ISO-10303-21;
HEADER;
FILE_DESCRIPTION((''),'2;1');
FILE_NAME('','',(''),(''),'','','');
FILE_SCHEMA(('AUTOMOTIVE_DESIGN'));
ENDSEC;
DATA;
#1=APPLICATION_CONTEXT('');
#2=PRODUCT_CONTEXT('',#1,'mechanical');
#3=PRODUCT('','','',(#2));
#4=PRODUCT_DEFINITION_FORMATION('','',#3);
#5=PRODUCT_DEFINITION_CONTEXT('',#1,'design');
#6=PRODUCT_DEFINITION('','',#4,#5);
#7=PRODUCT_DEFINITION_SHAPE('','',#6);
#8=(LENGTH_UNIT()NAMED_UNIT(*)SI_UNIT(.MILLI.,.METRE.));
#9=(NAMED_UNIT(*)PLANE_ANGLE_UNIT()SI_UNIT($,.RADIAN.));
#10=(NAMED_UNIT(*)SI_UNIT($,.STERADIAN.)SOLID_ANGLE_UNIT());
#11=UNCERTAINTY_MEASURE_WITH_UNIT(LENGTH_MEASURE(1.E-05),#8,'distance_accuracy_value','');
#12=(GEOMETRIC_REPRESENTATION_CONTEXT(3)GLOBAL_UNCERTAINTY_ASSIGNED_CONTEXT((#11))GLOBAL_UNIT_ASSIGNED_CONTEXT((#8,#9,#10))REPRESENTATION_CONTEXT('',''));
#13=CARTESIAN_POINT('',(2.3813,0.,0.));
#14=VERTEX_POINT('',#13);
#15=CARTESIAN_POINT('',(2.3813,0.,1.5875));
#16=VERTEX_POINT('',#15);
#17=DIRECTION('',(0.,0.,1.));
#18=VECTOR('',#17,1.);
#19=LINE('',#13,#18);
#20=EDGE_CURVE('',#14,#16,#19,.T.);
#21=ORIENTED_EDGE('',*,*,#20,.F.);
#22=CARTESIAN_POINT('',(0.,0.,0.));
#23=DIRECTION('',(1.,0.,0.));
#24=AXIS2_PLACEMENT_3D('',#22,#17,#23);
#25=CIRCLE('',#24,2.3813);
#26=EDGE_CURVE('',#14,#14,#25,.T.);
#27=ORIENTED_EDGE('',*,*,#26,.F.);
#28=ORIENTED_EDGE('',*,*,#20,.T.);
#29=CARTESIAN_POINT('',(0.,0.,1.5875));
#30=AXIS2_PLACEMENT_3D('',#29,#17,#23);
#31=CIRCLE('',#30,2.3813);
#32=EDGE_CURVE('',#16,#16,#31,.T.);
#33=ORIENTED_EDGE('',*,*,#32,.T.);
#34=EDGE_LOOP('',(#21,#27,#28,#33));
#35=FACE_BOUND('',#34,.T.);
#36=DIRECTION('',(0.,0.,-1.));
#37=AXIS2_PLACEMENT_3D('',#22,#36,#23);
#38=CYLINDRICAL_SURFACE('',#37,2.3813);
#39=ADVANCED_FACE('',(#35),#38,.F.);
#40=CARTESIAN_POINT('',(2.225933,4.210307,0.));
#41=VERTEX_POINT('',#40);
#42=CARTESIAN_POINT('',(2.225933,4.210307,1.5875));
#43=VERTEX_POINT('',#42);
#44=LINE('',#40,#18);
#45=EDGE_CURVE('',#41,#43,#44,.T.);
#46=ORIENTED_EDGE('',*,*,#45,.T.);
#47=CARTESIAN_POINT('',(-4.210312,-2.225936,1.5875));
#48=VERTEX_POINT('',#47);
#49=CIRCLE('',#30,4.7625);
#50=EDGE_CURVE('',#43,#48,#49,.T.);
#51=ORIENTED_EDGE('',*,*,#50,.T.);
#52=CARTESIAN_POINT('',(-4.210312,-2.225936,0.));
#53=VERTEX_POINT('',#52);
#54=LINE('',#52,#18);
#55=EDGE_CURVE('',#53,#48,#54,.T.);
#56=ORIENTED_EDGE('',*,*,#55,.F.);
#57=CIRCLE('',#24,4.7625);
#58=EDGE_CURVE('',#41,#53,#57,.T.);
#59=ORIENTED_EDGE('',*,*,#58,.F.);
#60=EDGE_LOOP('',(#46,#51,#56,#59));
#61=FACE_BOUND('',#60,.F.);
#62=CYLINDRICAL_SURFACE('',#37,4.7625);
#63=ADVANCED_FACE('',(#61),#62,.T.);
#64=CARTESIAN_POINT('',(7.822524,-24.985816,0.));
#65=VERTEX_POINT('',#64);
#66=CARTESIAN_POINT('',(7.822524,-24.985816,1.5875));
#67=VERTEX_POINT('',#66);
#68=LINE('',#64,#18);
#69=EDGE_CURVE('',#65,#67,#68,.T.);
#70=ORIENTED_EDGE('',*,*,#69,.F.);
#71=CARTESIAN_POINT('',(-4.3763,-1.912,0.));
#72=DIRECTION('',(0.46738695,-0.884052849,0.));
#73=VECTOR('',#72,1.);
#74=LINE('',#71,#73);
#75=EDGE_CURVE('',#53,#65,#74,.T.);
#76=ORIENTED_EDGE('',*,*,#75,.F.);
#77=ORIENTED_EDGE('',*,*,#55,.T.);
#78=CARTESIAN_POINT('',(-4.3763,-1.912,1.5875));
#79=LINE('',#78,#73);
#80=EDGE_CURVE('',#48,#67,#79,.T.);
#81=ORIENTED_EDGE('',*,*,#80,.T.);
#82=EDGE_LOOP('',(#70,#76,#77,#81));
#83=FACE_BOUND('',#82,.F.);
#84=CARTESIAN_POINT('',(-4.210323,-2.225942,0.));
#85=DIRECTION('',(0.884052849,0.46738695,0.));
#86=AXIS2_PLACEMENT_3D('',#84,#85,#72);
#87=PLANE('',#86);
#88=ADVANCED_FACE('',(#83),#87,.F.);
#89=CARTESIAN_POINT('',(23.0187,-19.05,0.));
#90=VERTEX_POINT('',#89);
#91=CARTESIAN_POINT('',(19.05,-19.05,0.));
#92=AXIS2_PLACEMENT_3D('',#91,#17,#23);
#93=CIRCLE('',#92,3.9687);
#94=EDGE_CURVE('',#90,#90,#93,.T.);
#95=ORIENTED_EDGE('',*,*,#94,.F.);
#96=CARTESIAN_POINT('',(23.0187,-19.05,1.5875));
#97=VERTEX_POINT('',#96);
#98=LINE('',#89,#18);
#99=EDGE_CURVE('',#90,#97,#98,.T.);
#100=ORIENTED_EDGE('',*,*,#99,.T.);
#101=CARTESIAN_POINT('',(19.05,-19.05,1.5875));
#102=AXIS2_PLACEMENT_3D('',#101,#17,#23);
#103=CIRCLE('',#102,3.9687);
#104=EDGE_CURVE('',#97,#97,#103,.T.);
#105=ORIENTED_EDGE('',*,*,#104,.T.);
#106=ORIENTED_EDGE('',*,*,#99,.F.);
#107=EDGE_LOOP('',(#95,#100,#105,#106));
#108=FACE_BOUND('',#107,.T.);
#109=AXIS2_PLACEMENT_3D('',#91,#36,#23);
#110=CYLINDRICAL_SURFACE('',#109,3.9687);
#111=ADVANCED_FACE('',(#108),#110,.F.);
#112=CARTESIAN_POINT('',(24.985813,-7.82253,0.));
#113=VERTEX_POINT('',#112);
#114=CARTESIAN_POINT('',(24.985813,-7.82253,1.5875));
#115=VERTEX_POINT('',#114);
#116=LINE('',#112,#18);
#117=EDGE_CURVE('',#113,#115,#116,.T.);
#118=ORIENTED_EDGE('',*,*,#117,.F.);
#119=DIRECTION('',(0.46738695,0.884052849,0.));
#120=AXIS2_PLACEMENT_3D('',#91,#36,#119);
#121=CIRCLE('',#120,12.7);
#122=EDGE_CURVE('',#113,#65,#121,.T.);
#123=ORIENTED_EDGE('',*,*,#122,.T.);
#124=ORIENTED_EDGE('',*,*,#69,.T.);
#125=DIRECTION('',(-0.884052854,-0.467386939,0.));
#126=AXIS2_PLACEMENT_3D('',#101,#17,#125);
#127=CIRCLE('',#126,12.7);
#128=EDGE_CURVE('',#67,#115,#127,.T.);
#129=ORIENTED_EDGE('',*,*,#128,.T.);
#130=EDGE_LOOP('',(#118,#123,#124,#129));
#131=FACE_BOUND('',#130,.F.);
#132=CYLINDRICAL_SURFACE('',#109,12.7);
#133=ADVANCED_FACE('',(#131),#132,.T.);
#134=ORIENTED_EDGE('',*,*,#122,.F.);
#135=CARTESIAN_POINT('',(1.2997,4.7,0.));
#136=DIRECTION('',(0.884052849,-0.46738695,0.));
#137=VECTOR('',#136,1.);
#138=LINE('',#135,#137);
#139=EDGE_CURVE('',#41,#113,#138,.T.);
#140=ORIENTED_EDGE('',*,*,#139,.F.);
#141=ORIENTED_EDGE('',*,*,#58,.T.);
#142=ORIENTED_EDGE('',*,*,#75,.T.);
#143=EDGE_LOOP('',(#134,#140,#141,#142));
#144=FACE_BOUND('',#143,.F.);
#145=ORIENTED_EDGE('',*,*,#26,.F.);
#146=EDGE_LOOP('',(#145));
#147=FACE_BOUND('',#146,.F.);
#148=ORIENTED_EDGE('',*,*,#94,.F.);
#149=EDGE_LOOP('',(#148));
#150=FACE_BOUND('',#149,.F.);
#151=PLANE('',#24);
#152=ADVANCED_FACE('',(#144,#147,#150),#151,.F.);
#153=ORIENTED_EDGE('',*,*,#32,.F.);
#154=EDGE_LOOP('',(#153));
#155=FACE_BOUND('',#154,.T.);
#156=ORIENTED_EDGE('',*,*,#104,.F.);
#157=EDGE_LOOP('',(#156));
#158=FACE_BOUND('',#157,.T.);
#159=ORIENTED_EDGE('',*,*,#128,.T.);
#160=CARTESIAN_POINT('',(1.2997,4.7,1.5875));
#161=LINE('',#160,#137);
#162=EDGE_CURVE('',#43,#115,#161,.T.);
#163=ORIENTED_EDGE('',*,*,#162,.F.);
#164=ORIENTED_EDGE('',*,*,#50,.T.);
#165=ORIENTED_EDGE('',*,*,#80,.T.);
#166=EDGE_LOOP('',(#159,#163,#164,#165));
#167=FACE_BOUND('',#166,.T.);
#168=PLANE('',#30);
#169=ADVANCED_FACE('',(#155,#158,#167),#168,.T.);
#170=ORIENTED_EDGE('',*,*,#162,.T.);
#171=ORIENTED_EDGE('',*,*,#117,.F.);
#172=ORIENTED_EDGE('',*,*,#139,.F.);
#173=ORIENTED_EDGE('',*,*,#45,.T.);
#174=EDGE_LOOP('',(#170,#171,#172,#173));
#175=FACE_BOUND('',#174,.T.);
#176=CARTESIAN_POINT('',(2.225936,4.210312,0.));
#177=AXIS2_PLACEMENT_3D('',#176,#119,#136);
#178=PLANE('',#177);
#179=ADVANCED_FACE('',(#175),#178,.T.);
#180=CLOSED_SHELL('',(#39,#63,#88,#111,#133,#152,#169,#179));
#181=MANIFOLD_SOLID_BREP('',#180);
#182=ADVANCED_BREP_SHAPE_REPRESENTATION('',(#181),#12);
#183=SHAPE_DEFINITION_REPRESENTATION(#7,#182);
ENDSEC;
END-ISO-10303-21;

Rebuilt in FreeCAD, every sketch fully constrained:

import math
import FreeCAD as App
import Part
import Sketcher

V = App.Vector
Q = App.Units.Quantity

doc = App.newDocument("Part")
body = doc.addObject("PartDesign::Body", "Body")

# Sketch on XY plane
sketch1 = body.newObject("Sketcher::SketchObject", "Sketch")
sketch1.AttachmentSupport = (doc.getObject("XY_Plane"), [""])
sketch1.MapMode = "FlatFace"
sketch1.addGeometry(Part.ArcOfCircle(Part.Circle(V(0, 0, 0), V(0, 0, 1), 4.7625), math.radians(62.135189), math.radians(207.864811)), False)
sketch1.addGeometry(Part.LineSegment(V(-4.210323, -2.225942, 0), V(7.82252, -24.985819, 0)), False)
sketch1.addGeometry(Part.ArcOfCircle(Part.Circle(V(19.05, -19.05, 0), V(0, 0, 1), 12.7), math.radians(-152.13519), math.radians(62.135189)), False)
sketch1.addGeometry(Part.LineSegment(V(24.985813, -7.822532, 0), V(2.225936, 4.210312, 0)), False)
sketch1.addGeometry(Part.Circle(V(0, 0, 0), V(0, 0, 1), 2.3813), False)
sketch1.addGeometry(Part.Circle(V(19.05, -19.05, 0), V(0, 0, 1), 3.9687), False)
sketch1.addConstraint(Sketcher.Constraint("Tangent", 0, 2, 1, 1))
sketch1.addConstraint(Sketcher.Constraint("Tangent", 1, 2, 2, 1))
sketch1.addConstraint(Sketcher.Constraint("Tangent", 2, 2, 3, 1))
sketch1.addConstraint(Sketcher.Constraint("Tangent", 3, 2, 0, 1))
sketch1.addConstraint(Sketcher.Constraint("Coincident", 0, 3, -1, 1))
sketch1.addConstraint(Sketcher.Constraint("Coincident", 4, 3, -1, 1))
sketch1.addConstraint(Sketcher.Constraint("Coincident", 5, 3, 2, 3))
sketch1.addConstraint(Sketcher.Constraint("Radius", 2, Q("0.5 in")))
sketch1.addConstraint(Sketcher.Constraint("Diameter", 4, Q("0.1875 in")))
sketch1.addConstraint(Sketcher.Constraint("Diameter", 5, Q("0.3125 in")))
sketch1.addConstraint(Sketcher.Constraint("Radius", 0, Q("0.1875 in")))
sketch1.addConstraint(Sketcher.Constraint("DistanceX", -1, 1, 2, 3, Q("0.75 in")))
sketch1.addConstraint(Sketcher.Constraint("DistanceY", 2, 3, -1, 1, Q("0.75 in")))
pad1 = body.newObject("PartDesign::Pad", "Pad")
pad1.Profile = sketch1
pad1.Length = Q("0.0625 in")

doc.recompute()
